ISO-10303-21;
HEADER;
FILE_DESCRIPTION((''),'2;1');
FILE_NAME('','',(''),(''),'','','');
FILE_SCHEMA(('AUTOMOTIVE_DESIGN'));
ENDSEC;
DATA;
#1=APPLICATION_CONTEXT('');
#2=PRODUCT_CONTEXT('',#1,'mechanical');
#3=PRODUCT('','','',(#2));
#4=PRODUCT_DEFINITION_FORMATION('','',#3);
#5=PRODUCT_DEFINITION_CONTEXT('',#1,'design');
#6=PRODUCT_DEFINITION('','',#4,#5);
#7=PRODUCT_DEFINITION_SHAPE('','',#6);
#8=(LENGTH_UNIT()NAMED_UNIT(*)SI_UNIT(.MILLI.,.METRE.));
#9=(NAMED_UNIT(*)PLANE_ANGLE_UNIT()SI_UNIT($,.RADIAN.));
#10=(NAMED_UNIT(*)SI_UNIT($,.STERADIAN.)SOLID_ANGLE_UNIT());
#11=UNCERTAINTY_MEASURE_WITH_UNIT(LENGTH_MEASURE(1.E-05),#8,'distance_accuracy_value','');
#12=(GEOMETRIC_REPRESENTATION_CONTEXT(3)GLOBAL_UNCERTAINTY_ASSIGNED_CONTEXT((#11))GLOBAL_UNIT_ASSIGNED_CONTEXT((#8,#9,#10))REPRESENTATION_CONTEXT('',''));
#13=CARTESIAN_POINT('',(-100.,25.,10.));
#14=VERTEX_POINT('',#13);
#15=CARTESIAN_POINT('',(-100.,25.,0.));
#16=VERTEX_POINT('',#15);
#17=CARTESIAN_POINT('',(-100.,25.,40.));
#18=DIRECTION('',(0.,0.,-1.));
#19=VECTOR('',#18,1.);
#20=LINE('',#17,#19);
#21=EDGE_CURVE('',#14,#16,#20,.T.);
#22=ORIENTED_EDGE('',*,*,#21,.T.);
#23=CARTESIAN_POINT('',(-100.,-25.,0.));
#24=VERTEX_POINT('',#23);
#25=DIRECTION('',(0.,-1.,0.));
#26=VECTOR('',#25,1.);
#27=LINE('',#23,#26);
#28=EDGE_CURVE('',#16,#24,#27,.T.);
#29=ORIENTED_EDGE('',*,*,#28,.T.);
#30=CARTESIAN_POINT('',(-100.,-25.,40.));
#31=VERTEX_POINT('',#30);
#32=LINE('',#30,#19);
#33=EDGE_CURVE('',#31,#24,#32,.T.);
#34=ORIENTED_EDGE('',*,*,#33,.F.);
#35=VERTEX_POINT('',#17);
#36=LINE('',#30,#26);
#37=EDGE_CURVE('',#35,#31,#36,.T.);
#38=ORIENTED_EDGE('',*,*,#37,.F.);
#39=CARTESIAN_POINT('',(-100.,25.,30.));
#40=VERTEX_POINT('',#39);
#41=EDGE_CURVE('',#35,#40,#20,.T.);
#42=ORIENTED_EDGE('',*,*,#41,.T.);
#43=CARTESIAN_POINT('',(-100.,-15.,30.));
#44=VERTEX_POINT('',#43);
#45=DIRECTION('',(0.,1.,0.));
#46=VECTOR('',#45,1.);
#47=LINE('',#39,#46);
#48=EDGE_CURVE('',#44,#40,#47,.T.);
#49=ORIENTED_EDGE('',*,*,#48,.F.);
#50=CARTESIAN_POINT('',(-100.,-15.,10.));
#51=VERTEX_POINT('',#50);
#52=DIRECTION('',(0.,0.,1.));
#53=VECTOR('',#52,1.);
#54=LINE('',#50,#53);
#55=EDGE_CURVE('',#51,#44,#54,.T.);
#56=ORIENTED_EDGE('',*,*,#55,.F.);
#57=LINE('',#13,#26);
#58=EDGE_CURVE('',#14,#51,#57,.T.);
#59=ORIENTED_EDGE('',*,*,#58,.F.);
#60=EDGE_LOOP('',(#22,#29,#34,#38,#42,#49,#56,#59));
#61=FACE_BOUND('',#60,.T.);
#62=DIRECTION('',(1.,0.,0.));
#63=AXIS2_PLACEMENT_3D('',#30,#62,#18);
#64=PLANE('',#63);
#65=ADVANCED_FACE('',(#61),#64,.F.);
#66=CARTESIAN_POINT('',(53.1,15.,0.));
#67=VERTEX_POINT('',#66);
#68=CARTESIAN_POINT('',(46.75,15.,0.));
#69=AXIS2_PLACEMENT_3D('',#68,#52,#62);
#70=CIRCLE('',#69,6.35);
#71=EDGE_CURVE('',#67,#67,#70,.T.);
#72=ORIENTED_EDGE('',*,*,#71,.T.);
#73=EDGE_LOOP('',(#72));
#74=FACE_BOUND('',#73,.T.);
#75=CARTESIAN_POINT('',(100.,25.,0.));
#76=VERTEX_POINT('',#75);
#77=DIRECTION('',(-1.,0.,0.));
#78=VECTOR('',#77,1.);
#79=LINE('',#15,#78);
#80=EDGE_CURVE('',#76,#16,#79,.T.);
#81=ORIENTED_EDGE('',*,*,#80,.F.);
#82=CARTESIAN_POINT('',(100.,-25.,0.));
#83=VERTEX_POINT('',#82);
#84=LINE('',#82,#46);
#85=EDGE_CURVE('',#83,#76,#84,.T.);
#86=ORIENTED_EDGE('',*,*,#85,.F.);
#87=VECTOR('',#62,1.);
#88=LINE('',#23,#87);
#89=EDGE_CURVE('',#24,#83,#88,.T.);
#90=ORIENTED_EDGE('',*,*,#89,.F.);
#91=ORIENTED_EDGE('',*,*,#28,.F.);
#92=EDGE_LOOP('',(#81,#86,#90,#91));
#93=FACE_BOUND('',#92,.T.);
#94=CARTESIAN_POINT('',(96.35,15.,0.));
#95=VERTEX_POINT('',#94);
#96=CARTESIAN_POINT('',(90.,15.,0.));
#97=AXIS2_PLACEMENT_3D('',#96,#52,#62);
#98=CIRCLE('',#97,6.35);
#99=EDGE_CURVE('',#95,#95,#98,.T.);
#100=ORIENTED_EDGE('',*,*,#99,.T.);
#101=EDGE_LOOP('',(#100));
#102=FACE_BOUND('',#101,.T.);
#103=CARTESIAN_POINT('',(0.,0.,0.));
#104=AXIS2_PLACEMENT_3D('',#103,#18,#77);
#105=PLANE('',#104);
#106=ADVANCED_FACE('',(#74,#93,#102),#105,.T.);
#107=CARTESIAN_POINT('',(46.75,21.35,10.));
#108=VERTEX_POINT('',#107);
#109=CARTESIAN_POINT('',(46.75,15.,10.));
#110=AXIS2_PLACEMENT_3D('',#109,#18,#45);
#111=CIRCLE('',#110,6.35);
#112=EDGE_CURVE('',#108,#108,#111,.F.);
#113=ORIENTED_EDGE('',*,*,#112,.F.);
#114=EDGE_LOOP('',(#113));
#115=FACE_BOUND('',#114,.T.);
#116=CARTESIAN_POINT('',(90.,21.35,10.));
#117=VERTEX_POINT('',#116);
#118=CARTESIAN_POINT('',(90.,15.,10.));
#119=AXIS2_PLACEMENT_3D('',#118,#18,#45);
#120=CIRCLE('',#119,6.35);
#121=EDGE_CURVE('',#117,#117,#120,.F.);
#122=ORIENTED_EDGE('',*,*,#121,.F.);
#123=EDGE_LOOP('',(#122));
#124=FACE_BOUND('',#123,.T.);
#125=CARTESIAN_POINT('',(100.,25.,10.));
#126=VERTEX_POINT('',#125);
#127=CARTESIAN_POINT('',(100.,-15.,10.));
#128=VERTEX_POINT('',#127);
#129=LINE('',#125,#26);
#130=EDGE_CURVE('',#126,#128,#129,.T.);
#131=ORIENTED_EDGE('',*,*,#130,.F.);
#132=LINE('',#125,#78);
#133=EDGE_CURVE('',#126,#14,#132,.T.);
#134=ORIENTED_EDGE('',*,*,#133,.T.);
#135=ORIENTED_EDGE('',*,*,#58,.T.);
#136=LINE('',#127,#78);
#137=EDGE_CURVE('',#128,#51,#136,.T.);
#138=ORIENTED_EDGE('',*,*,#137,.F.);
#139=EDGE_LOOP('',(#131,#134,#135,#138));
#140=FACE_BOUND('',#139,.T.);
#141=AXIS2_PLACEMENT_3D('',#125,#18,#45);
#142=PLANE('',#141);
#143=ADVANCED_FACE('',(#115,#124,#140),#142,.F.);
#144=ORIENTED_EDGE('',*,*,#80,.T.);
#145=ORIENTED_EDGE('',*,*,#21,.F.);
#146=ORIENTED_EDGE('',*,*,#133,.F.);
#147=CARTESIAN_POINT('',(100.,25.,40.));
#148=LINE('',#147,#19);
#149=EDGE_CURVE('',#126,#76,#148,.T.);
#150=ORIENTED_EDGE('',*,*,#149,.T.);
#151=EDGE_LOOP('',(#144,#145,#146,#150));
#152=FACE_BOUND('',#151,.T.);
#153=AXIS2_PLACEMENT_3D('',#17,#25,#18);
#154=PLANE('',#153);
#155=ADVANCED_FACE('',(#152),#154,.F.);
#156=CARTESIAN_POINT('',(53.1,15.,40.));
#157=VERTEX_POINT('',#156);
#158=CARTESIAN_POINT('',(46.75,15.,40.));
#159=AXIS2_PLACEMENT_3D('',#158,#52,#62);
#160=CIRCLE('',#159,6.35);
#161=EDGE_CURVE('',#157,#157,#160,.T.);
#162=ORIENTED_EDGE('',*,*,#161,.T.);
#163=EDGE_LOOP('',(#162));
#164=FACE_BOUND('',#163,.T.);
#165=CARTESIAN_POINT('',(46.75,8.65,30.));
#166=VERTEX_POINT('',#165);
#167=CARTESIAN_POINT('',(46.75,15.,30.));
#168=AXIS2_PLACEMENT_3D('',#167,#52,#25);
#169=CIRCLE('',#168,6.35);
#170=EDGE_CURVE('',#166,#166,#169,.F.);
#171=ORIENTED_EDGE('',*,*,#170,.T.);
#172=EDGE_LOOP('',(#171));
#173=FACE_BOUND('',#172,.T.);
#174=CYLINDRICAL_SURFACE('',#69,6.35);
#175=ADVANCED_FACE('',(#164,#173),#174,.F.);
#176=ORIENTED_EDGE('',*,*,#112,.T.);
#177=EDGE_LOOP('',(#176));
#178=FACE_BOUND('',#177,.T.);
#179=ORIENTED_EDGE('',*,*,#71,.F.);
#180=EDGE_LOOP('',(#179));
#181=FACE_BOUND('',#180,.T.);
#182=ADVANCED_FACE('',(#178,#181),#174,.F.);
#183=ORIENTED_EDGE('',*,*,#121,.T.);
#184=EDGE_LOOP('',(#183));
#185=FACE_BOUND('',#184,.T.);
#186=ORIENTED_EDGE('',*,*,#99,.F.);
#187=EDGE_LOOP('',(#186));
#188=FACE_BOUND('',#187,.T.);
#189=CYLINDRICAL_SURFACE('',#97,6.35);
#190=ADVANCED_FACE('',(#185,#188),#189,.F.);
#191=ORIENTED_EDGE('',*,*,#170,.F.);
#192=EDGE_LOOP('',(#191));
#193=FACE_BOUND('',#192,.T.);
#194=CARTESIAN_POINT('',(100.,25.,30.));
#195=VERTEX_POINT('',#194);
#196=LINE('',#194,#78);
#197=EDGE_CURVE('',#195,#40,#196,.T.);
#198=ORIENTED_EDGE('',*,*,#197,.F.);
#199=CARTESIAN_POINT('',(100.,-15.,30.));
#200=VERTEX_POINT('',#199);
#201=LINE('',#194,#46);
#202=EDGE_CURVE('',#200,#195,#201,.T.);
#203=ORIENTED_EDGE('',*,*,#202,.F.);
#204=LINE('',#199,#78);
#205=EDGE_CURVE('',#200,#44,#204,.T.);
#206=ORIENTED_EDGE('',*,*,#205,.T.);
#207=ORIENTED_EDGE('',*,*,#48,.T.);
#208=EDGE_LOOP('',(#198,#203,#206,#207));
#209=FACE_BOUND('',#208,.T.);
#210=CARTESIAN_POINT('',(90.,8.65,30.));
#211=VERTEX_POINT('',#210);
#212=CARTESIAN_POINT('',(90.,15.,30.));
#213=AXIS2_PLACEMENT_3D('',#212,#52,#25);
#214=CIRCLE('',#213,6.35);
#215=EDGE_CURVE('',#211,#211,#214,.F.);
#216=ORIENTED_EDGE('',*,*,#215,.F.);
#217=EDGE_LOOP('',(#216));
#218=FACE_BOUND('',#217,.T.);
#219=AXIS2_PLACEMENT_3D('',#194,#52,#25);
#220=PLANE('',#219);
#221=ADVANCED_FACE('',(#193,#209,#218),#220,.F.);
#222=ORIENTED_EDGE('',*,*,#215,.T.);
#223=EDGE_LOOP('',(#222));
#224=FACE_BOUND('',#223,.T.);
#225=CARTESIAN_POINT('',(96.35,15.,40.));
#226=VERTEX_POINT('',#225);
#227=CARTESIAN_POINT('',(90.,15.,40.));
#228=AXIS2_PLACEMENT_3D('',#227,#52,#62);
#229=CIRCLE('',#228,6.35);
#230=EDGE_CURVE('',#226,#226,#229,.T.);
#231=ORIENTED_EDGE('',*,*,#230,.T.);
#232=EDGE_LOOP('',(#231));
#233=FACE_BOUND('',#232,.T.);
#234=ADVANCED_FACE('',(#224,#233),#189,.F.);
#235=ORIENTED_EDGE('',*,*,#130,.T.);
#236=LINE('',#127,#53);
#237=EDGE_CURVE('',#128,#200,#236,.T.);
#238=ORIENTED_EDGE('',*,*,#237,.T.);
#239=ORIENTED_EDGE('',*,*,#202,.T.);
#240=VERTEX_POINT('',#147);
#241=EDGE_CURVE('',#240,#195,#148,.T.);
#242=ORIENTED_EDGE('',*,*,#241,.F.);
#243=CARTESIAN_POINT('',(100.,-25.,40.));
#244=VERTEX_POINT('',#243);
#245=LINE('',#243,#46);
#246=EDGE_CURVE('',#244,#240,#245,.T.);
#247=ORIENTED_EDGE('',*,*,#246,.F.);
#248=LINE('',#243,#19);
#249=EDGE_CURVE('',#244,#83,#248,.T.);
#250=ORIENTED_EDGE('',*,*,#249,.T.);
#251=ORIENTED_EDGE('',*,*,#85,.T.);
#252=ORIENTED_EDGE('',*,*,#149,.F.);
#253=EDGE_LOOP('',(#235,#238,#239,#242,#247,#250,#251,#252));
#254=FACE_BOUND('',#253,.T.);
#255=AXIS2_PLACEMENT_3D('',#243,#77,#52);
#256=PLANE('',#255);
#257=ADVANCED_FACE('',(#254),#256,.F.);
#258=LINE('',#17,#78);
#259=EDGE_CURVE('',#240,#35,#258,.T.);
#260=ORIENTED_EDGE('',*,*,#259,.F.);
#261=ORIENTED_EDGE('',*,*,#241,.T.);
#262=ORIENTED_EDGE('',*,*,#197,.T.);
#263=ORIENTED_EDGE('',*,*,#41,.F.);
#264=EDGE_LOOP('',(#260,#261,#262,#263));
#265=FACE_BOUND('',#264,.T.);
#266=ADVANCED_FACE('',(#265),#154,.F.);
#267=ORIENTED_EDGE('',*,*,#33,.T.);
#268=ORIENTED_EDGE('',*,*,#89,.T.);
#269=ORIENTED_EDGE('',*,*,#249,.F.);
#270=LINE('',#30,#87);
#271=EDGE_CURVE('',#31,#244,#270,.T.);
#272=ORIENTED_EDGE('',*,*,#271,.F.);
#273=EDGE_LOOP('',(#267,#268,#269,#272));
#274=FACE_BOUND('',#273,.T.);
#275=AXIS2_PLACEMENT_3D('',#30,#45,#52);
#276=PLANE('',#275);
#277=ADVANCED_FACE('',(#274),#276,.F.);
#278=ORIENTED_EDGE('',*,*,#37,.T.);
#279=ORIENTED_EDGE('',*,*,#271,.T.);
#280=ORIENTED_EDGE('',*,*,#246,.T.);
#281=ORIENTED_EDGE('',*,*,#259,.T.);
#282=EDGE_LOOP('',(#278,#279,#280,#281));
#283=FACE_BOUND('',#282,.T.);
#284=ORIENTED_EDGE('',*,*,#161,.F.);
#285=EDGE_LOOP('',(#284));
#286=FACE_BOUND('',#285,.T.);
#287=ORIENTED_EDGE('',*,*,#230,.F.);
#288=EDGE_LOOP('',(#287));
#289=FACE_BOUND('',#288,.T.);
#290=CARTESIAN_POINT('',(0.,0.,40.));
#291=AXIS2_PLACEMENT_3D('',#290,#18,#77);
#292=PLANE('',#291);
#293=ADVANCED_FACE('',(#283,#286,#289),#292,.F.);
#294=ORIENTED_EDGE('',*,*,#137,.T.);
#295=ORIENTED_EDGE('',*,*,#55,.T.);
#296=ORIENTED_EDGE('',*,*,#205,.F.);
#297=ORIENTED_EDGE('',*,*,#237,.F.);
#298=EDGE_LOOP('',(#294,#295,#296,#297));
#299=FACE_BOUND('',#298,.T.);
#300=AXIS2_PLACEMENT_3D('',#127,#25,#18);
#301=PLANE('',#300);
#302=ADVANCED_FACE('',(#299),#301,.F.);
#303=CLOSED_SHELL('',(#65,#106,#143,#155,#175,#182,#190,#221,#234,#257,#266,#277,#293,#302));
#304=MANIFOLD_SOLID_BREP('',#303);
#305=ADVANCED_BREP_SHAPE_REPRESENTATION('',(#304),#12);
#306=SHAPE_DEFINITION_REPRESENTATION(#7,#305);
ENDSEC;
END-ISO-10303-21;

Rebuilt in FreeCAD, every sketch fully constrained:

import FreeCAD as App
import Part
import Sketcher

V = App.Vector


def add_polygon(sketch, points):
    """Adds a closed chain of lines whose ends are joined by coincident constraints."""
    first, n = sketch.GeometryCount, len(points)
    for a, b in zip(points, points[1:] + points[:1]):
        sketch.addGeometry(Part.LineSegment(App.Vector(*a, 0), App.Vector(*b, 0)), False)
    for i in range(n):
        sketch.addConstraint(Sketcher.Constraint("Coincident", first + i, 2, first + (i + 1) % n, 1))

doc = App.newDocument("Part")
body = doc.addObject("PartDesign::Body", "Body")

# Sketch on XY plane
sketch1 = doc.addObject("Sketcher::SketchObject", "Sketch")
body.addObject(sketch1)
sketch1.AttachmentSupport = (doc.XY_Plane, [""])
sketch1.MapMode = "FlatFace"
add_polygon(sketch1, [(-100, 25), (-100, -25), (100, -25), (100, 25)])  # lines 0-3
sketch1.addConstraint(Sketcher.Constraint("Vertical", 0))
sketch1.addConstraint(Sketcher.Constraint("Horizontal", 1))
sketch1.addConstraint(Sketcher.Constraint("Vertical", 2))
sketch1.addConstraint(Sketcher.Constraint("Horizontal", 3))
sketch1.addConstraint(Sketcher.Constraint("Symmetric", 0, 2, 2, 2, -1, 1))
sketch1.addConstraint(Sketcher.Constraint("DistanceX", 1, 1, 1, 2, 200.0))
sketch1.addConstraint(Sketcher.Constraint("DistanceY", 0, 2, 0, 1, 50.0))
pad1 = doc.addObject("PartDesign::Pad", "Pad")
body.addObject(pad1)
pad1.Profile = sketch1
pad1.Length = 40

# Sketch on XY plane
sketch2 = doc.addObject("Sketcher::SketchObject", "Sketch001")
body.addObject(sketch2)
sketch2.AttachmentSupport = (doc.XY_Plane, [""])
sketch2.MapMode = "FlatFace"
sketch2.AttachmentOffset = App.Placement(V(0, 0, 40), App.Rotation())
sketch2.addGeometry(Part.Circle(V(90, 15, 0), V(0, 0, 1), 6.35), False)
sketch2.addGeometry(Part.Circle(V(46.75, 15, 0), V(0, 0, 1), 6.35), False)
sketch2.addConstraint(Sketcher.Constraint("Equal", 0, 1))
sketch2.addConstraint(Sketcher.Constraint("Horizontal", 0, 3, 1, 3))
sketch2.addConstraint(Sketcher.Constraint("Diameter", 0, 12.7))
sketch2.addConstraint(Sketcher.Constraint("DistanceX", -1, 1, 0, 3, 90.0))
sketch2.addConstraint(Sketcher.Constraint("DistanceY", -1, 1, 0, 3, 15.0))
sketch2.addConstraint(Sketcher.Constraint("DistanceX", -1, 1, 1, 3, 46.75))
pocket1 = doc.addObject("PartDesign::Pocket", "Pocket")
body.addObject(pocket1)
pocket1.Profile = sketch2
pocket1.Type = "ThroughAll"

# Sketch on YZ plane
sketch3 = doc.addObject("Sketcher::SketchObject", "Sketch002")
body.addObject(sketch3)
sketch3.AttachmentSupport = (doc.YZ_Plane, [""])
sketch3.MapMode = "FlatFace"
sketch3.AttachmentOffset = App.Placement(V(0, 0, -100), App.Rotation())
add_polygon(sketch3, [(25, 10), (-15, 10), (-15, 30), (25, 30)])  # lines 0-3
sketch3.addConstraint(Sketcher.Constraint("Horizontal", 0))
sketch3.addConstraint(Sketcher.Constraint("Vertical", 1))
sketch3.addConstraint(Sketcher.Constraint("Horizontal", 2))
sketch3.addConstraint(Sketcher.Constraint("Vertical", 3))
sketch3.addConstraint(Sketcher.Constraint("DistanceX", 0, 2, 0, 1, 40.0))
sketch3.addConstraint(Sketcher.Constraint("DistanceY", 1, 1, 1, 2, 20.0))
sketch3.addConstraint(Sketcher.Constraint("DistanceX", 0, 2, -1, 1, 15.0))
sketch3.addConstraint(Sketcher.Constraint("DistanceY", -1, 1, 0, 2, 10.0))
pocket2 = doc.addObject("PartDesign::Pocket", "Pocket001")
body.addObject(pocket2)
pocket2.Profile = sketch3
pocket2.Type = "ThroughAll"
pocket2.Reversed = True

doc.recompute()
